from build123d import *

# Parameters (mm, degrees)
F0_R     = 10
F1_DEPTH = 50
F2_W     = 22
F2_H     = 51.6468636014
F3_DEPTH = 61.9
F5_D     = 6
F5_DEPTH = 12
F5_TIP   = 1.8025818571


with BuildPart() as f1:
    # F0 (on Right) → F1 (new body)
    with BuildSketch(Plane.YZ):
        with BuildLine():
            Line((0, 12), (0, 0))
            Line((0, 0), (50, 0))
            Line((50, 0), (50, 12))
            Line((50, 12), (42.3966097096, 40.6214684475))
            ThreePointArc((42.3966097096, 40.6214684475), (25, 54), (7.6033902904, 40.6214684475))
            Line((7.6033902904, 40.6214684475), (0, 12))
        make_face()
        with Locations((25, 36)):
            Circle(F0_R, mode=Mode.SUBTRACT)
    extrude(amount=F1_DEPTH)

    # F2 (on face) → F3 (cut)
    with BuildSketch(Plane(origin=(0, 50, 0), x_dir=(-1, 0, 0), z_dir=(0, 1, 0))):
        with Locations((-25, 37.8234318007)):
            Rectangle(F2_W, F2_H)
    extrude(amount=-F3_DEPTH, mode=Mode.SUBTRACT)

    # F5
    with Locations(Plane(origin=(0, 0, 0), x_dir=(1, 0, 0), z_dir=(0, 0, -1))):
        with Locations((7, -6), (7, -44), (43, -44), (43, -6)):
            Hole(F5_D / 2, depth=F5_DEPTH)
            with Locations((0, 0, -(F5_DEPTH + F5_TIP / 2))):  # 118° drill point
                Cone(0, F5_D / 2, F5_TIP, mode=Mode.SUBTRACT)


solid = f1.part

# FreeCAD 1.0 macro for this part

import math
import FreeCAD as App
import Part
import Sketcher


def add_polygon(sketch, points):
    """Adds a closed chain of lines whose ends are joined by coincident constraints."""
    first, n = sketch.GeometryCount, len(points)
    for a, b in zip(points, points[1:] + points[:1]):
        sketch.addGeometry(Part.LineSegment(App.Vector(*a, 0), App.Vector(*b, 0)), False)
    for i in range(n):
        sketch.addConstraint(Sketcher.Constraint("Coincident", first + i, 2, first + (i + 1) % n, 1))

doc = App.newDocument("Part")
body = doc.addObject("PartDesign::Body", "Body")

sketch1 = body.newObject("Sketcher::SketchObject", "Sketch")
sketch1.AttachmentSupport = (doc.getObject("YZ_Plane"), [""])
sketch1.MapMode = "FlatFace"
sketch1.addGeometry(Part.LineSegment(App.Vector(0, 12, 0), App.Vector(0, 0, 0)), False)
sketch1.addGeometry(Part.LineSegment(App.Vector(0, 0, 0), App.Vector(50, 0, 0)), False)
sketch1.addGeometry(Part.LineSegment(App.Vector(50, 0, 0), App.Vector(50, 12, 0)), False)
sketch1.addGeometry(Part.LineSegment(App.Vector(50, 12, 0), App.Vector(42, 41, 0)), False)
sketch1.addGeometry(Part.ArcOfCircle(Part.Circle(App.Vector(25, 36, 0), App.Vector(0, 0, 1), 18), math.radians(15), math.radians(165)), False)
sketch1.addGeometry(Part.LineSegment(App.Vector(8, 41, 0), App.Vector(0, 12, 0)), False)
sketch1.addGeometry(Part.Circle(App.Vector(25, 36, 0), App.Vector(0, 0, 1), 10), False)
sketch1.addConstraint(Sketcher.Constraint("Coincident", 0, 2, 1, 1))
sketch1.addConstraint(Sketcher.Constraint("Coincident", 1, 2, 2, 1))
sketch1.addConstraint(Sketcher.Constraint("Coincident", 2, 2, 3, 1))
sketch1.addConstraint(Sketcher.Constraint("Tangent", 3, 2, 4, 1))
sketch1.addConstraint(Sketcher.Constraint("Tangent", 4, 2, 5, 1))
sketch1.addConstraint(Sketcher.Constraint("Coincident", 5, 2, 0, 1))
sketch1.addConstraint(Sketcher.Constraint("Vertical", 0))
sketch1.addConstraint(Sketcher.Constraint("Horizontal", 1))
sketch1.addConstraint(Sketcher.Constraint("Vertical", 2))
sketch1.addConstraint(Sketcher.Constraint("Coincident", 0, 2, -1, 1))
sketch1.addConstraint(Sketcher.Constraint("Coincident", 6, 3, 4, 3))
sketch1.addConstraint(Sketcher.Constraint("Horizontal", 3, 2, 4, 2))
sketch1.addConstraint(Sketcher.Constraint("Horizontal", 2, 2, 5, 2))
sketch1.addConstraint(Sketcher.Constraint("Diameter", 6, 20.0))
sketch1.addConstraint(Sketcher.Constraint("Radius", 4, 18.0))
sketch1.addConstraint(Sketcher.Constraint("DistanceX", 1, 1, 1, 2, 50.0))
sketch1.addConstraint(Sketcher.Constraint("DistanceY", 0, 2, 0, 1, 12.0))
sketch1.addConstraint(Sketcher.Constraint("DistanceY", -1, 1, 4, 3, 36.0))
pad1 = body.newObject("PartDesign::Pad", "Pad")
pad1.Profile = sketch1
pad1.Length = 50

sketch2 = body.newObject("Sketcher::SketchObject", "Sketch001")
sketch2.AttachmentSupport = (doc.getObject("XZ_Plane"), [""])
sketch2.MapMode = "FlatFace"
sketch2.AttachmentOffset = App.Placement(App.Vector(0, 0, -50), App.Rotation())
add_polygon(sketch2, [(36, 64), (36, 12), (14, 12), (14, 64)])
sketch2.addConstraint(Sketcher.Constraint("Vertical", 0))
sketch2.addConstraint(Sketcher.Constraint("Horizontal", 1))
sketch2.addConstraint(Sketcher.Constraint("Vertical", 2))
sketch2.addConstraint(Sketcher.Constraint("Horizontal", 3))
sketch2.addConstraint(Sketcher.Constraint("DistanceX", 1, 2, 1, 1, 22.0))
sketch2.addConstraint(Sketcher.Constraint("DistanceX", -1, 1, 0, 2, 36.0))
sketch2.addConstraint(Sketcher.Constraint("DistanceY", -1, 1, 0, 2, 12.0))
sketch2.addConstraint(Sketcher.Constraint("DistanceY", 0, 2, 0, 1, 51.646864))
pocket1 = body.newObject("PartDesign::Pocket", "Pocket")
pocket1.Profile = sketch2
pocket1.Length = 61.9
pocket1.Reversed = True

sketch3 = body.newObject("Sketcher::SketchObject", "Sketch002")
sketch3.AttachmentSupport = (doc.getObject("XY_Plane"), [""])
sketch3.MapMode = "FlatFace"
sketch3.addGeometry(Part.Circle(App.Vector(7, 6, 0), App.Vector(0, 0, 1), 3), False)
sketch3.addGeometry(Part.Circle(App.Vector(7, 44, 0), App.Vector(0, 0, 1), 3), False)
sketch3.addGeometry(Part.Circle(App.Vector(43, 44, 0), App.Vector(0, 0, 1), 3), False)
sketch3.addGeometry(Part.Circle(App.Vector(43, 6, 0), App.Vector(0, 0, 1), 3), False)
sketch3.addConstraint(Sketcher.Constraint("Equal", 0, 1))
sketch3.addConstraint(Sketcher.Constraint("Equal", 1, 2))
sketch3.addConstraint(Sketcher.Constraint("Equal", 2, 3))
sketch3.addConstraint(Sketcher.Constraint("Horizontal", 1, 3, 2, 3))
sketch3.addConstraint(Sketcher.Constraint("Horizontal", 0, 3, 3, 3))
sketch3.addConstraint(Sketcher.Constraint("Vertical", 0, 3, 1, 3))
sketch3.addConstraint(Sketcher.Constraint("Vertical", 2, 3, 3, 3))
sketch3.addConstraint(Sketcher.Constraint("Diameter", 0, 6.0))
sketch3.addConstraint(Sketcher.Constraint("DistanceX", -1, 1, 0, 3, 7.0))
sketch3.addConstraint(Sketcher.Constraint("DistanceY", -1, 1, 0, 3, 6.0))
sketch3.addConstraint(Sketcher.Constraint("DistanceY", -1, 1, 1, 3, 44.0))
sketch3.addConstraint(Sketcher.Constraint("DistanceX", -1, 1, 2, 3, 43.0))
doc.recompute()
hole = body.newObject("PartDesign::Hole", "Hole")
hole.Profile = sketch3
hole.ThreadType = "None"
hole.Diameter = 6
hole.DepthType = "Dimension"
hole.Depth = 12
hole.DrillPoint = "Angled"
hole.DrillPointAngle = 118
hole.Reversed = True

doc.recompute()
